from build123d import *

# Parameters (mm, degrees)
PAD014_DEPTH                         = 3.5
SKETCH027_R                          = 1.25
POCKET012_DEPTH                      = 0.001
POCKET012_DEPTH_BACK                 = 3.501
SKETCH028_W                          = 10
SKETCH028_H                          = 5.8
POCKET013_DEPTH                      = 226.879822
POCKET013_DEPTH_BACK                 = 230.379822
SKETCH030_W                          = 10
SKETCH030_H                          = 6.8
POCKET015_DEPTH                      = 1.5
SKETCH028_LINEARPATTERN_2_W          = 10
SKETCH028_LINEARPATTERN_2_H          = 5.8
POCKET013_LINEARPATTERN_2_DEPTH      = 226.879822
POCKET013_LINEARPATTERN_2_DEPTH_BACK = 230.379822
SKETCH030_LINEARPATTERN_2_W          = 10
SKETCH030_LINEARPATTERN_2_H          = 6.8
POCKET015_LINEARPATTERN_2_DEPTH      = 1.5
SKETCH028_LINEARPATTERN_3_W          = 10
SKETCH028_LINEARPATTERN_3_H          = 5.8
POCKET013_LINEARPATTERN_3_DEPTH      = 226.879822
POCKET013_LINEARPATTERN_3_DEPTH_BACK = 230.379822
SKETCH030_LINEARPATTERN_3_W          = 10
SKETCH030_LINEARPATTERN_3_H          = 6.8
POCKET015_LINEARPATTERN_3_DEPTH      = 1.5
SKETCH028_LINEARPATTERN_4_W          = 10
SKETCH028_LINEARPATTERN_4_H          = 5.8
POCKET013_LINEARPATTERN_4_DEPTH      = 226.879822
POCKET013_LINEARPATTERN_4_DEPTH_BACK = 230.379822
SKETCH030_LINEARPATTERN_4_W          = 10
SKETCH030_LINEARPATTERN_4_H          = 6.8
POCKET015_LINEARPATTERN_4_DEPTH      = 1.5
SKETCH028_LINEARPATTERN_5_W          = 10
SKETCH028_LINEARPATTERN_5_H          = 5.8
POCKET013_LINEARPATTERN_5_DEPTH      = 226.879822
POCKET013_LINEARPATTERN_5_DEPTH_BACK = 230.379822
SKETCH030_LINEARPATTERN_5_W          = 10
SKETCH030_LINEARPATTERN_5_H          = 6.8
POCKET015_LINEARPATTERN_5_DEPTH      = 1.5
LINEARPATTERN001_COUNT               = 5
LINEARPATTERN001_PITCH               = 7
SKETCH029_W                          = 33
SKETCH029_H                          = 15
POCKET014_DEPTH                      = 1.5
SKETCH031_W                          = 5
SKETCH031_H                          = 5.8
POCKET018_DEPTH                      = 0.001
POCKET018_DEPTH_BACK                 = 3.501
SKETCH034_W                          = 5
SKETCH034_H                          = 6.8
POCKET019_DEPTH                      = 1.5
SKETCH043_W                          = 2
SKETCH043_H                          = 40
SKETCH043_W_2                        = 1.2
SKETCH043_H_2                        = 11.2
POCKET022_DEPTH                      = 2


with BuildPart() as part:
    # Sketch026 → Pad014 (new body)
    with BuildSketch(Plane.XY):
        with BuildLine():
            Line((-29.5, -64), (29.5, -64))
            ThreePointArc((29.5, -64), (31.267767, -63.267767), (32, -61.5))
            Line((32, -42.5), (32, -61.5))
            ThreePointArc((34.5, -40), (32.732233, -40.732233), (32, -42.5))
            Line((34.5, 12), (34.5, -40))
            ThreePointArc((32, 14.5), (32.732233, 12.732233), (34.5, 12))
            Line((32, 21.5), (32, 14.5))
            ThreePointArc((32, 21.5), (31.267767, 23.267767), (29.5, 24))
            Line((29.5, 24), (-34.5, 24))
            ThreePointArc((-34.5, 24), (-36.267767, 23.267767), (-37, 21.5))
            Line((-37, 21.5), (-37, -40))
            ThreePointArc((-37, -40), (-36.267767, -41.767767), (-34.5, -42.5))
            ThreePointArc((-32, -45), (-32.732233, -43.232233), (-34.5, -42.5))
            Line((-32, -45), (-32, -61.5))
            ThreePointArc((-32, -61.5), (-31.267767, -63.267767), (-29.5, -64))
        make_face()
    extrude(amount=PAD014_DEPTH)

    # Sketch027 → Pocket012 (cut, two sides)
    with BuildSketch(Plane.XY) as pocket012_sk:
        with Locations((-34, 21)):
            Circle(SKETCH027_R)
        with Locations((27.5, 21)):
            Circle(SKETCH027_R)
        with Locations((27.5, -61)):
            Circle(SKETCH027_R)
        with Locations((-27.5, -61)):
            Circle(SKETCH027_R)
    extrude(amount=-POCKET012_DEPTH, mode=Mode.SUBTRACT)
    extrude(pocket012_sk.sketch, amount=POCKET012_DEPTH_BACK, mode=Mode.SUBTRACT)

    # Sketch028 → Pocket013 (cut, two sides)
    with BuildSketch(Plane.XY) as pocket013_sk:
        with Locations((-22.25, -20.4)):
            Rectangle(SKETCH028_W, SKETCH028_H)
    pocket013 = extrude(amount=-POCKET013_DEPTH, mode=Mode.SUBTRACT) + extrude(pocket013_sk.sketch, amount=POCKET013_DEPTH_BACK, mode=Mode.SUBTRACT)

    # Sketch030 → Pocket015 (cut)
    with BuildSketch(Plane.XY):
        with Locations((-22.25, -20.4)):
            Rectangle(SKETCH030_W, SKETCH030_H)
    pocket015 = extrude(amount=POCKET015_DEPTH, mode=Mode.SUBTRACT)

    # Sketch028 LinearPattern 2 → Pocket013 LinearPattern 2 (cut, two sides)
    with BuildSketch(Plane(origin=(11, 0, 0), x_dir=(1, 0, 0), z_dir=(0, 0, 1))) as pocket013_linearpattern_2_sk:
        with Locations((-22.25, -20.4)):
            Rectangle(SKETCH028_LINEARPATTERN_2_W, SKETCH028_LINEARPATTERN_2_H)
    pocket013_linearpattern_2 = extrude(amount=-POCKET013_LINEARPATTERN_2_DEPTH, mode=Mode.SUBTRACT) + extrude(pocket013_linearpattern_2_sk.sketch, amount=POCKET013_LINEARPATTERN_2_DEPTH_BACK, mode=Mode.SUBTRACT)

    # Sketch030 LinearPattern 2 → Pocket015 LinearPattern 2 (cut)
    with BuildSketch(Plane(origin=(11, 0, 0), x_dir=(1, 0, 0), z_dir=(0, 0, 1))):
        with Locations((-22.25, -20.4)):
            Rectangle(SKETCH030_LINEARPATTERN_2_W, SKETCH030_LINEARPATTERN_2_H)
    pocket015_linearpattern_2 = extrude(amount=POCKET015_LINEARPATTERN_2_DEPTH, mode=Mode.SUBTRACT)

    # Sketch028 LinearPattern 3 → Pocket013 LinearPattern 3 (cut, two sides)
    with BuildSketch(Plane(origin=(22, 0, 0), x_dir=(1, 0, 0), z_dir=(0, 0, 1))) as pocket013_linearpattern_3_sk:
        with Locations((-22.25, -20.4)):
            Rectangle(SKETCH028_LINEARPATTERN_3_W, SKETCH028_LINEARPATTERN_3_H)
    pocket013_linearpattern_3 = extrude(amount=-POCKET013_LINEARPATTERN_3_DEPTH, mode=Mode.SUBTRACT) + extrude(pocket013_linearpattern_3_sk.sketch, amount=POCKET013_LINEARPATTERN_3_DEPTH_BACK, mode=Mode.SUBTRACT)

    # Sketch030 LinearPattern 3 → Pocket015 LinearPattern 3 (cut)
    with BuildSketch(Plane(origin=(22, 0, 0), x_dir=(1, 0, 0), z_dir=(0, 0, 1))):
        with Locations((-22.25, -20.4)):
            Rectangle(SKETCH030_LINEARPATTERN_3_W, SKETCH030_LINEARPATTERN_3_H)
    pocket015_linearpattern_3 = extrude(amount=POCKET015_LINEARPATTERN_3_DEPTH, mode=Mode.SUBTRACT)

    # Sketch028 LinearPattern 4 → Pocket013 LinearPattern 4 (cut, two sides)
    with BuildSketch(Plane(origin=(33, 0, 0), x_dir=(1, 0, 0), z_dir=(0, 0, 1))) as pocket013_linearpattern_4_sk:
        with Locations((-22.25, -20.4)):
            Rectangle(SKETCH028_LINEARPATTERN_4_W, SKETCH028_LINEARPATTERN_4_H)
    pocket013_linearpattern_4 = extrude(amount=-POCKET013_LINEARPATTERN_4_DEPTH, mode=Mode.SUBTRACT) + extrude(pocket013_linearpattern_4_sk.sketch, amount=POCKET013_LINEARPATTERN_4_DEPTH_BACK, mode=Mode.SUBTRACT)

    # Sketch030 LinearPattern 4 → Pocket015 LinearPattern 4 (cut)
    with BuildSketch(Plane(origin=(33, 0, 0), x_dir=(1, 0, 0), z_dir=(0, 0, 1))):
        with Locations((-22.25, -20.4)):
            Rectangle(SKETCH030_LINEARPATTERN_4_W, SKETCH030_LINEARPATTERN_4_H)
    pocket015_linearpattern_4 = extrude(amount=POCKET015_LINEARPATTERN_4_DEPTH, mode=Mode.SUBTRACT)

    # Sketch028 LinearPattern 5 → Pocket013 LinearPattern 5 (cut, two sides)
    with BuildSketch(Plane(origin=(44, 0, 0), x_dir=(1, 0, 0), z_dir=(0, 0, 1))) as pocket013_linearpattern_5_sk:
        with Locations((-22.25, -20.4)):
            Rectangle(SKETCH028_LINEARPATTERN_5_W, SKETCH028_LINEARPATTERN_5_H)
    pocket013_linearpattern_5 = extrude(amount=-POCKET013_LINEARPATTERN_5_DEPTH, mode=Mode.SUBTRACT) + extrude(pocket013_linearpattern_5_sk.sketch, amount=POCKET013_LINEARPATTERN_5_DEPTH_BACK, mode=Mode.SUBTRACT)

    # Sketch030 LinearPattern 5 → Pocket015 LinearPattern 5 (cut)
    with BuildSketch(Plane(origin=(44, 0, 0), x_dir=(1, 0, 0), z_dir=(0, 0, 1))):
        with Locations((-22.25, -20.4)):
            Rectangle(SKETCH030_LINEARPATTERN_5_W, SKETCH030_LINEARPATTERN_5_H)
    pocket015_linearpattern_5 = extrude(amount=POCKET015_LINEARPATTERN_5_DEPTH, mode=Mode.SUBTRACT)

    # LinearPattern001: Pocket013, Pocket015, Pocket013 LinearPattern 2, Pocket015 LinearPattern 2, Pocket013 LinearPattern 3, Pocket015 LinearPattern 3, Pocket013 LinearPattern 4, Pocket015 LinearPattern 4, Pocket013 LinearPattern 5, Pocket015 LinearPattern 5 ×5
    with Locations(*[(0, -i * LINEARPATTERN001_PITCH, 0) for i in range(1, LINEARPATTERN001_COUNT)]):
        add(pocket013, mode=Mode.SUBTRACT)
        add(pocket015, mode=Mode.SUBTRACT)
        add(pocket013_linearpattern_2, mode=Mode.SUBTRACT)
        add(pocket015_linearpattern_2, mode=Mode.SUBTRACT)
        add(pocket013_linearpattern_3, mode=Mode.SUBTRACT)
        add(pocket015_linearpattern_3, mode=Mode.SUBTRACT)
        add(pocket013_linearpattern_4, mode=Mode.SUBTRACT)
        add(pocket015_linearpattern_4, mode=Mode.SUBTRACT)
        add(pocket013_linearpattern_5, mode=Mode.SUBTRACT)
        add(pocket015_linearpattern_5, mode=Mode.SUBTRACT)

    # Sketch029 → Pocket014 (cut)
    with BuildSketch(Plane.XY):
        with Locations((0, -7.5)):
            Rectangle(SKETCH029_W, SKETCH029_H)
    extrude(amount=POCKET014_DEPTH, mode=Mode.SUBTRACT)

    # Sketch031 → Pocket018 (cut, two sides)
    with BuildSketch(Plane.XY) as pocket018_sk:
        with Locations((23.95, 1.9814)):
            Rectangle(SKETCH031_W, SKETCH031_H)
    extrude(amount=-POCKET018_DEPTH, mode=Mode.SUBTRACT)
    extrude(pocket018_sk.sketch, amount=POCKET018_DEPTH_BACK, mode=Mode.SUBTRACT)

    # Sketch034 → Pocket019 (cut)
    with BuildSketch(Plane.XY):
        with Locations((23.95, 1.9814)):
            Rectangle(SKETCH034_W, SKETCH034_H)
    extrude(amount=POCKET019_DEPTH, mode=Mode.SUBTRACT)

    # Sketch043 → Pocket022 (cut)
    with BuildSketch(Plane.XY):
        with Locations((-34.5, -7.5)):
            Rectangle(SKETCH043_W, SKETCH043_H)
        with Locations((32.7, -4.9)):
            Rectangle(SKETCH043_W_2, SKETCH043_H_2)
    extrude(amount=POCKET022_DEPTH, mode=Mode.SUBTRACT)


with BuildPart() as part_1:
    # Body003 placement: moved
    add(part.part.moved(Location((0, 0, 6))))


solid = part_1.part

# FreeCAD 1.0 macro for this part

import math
import FreeCAD as App
import Part
import Sketcher
from FreeCAD import Vector
Q = App.Units.Quantity

doc = App.newDocument("Part")
body = doc.addObject("PartDesign::Body", "Body")

sketch1 = body.newObject("Sketcher::SketchObject", "Sketch")
sketch1.AttachmentSupport = (doc.getObject("XY_Plane"), [""])
sketch1.MapMode = "FlatFace"
sketch1.addGeometry([
    Part.LineSegment(Vector(-29.5, -64, 0), Vector(29.5, -64, 0)),
    Part.ArcOfCircle(Part.Circle(Vector(29.5, -61.5, 0), Vector(0, 0, 1), 2.5), math.radians(-90), math.radians(0)),
    Part.LineSegment(Vector(32, -61.5, 0), Vector(32, -42.5, 0)),
    Part.ArcOfCircle(Part.Circle(Vector(34.5, -42.5, 0), Vector(0, 0, 1), 2.5), math.radians(90), math.radians(180)),
    Part.LineSegment(Vector(34.5, -40, 0), Vector(34.5, 12, 0)),
    Part.ArcOfCircle(Part.Circle(Vector(34.5, 14.5, 0), Vector(0, 0, 1), 2.5), math.radians(180), math.radians(270)),
    Part.LineSegment(Vector(32, 14.5, 0), Vector(32, 21.5, 0)),
    Part.ArcOfCircle(Part.Circle(Vector(29.5, 21.5, 0), Vector(0, 0, 1), 2.5), math.radians(0), math.radians(90)),
    Part.LineSegment(Vector(29.5, 24, 0), Vector(-34.5, 24, 0)),
    Part.ArcOfCircle(Part.Circle(Vector(-34.5, 21.5, 0), Vector(0, 0, 1), 2.5), math.radians(90), math.radians(180)),
    Part.LineSegment(Vector(-37, 21.5, 0), Vector(-37, -40, 0)),
    Part.ArcOfCircle(Part.Circle(Vector(-34.5, -40, 0), Vector(0, 0, 1), 2.5), math.radians(180), math.radians(270)),
    Part.ArcOfCircle(Part.Circle(Vector(-34.5, -45, 0), Vector(0, 0, 1), 2.5), math.radians(0), math.radians(90)),
    Part.LineSegment(Vector(-32, -45, 0), Vector(-32, -61.5, 0)),
    Part.ArcOfCircle(Part.Circle(Vector(-29.5, -61.5, 0), Vector(0, 0, 1), 2.5), math.radians(180), math.radians(270)),
], False)
sketch1.addConstraint([
    Sketcher.Constraint("Tangent", 0, 2, 1, 1),
    Sketcher.Constraint("Tangent", 1, 2, 2, 1),
    Sketcher.Constraint("Tangent", 2, 2, 3, 2),
    Sketcher.Constraint("Coincident", 3, 1, 4, 1),
    Sketcher.Constraint("Coincident", 4, 2, 5, 2),
    Sketcher.Constraint("Tangent", 5, 1, 6, 1),
    Sketcher.Constraint("Tangent", 6, 2, 7, 1),
    Sketcher.Constraint("Tangent", 7, 2, 8, 1),
    Sketcher.Constraint("Tangent", 8, 2, 9, 1),
    Sketcher.Constraint("Tangent", 9, 2, 10, 1),
    Sketcher.Constraint("Tangent", 10, 2, 11, 1),
    Sketcher.Constraint("Tangent", 11, 2, 12, 2),
    Sketcher.Constraint("Tangent", 12, 1, 13, 1),
    Sketcher.Constraint("Tangent", 13, 2, 14, 1),
    Sketcher.Constraint("Tangent", 14, 2, 0, 1),
    Sketcher.Constraint("Horizontal", 0),
    Sketcher.Constraint("Vertical", 2),
    Sketcher.Constraint("Vertical", 4),
    Sketcher.Constraint("Vertical", 6),
    Sketcher.Constraint("Horizontal", 8),
    Sketcher.Constraint("Vertical", 10),
    Sketcher.Constraint("Vertical", 13),
    Sketcher.Constraint("Equal", 1, 3),
    Sketcher.Constraint("Equal", 3, 5),
    Sketcher.Constraint("Equal", 5, 7),
    Sketcher.Constraint("Equal", 7, 9),
    Sketcher.Constraint("Equal", 9, 11),
    Sketcher.Constraint("Equal", 11, 12),
    Sketcher.Constraint("Equal", 12, 14),
    Sketcher.Constraint("Horizontal", 11, 3, 3, 1),
    Sketcher.Constraint("Vertical", 3, 3, 5, 3),
    Sketcher.Constraint("Vertical", 11, 3, 12, 3),
    Sketcher.Constraint("Vertical", 5, 3, 3, 1),
    Sketcher.Constraint("Radius", 1, Q("2.5 mm")),
    Sketcher.Constraint("DistanceX", 0, 1, 0, 2, Q("59 mm")),
    Sketcher.Constraint("DistanceY", 2, 1, 2, 2, Q("19 mm")),
    Sketcher.Constraint("DistanceY", 4, 1, 4, 2, Q("52 mm")),
    Sketcher.Constraint("DistanceY", 6, 1, 6, 2, Q("7 mm")),
    Sketcher.Constraint("DistanceY", 11, 3, -1, 1, Q("40 mm")),
    Sketcher.Constraint("DistanceX", -1, 1, 1, 2, Q("32 mm")),
])
pad1 = body.newObject("PartDesign::Pad", "Pad")
pad1.Profile = sketch1
pad1.Length = 3.5

sketch2 = body.newObject("Sketcher::SketchObject", "Sketch001")
sketch2.AttachmentSupport = (doc.getObject("XY_Plane"), [""])
sketch2.MapMode = "FlatFace"
sketch2.addGeometry([
    Part.Circle(Vector(-34, 21, 0), Vector(0, 0, 1), 1.2),
    Part.Circle(Vector(27.5, 21, 0), Vector(0, 0, 1), 1.2),
    Part.Circle(Vector(27.5, -61, 0), Vector(0, 0, 1), 1.2),
    Part.Circle(Vector(-27.5, -61, 0), Vector(0, 0, 1), 1.2),
], False)
sketch2.addConstraint([
    Sketcher.Constraint("Equal", 0, 1),
    Sketcher.Constraint("Equal", 1, 2),
    Sketcher.Constraint("Equal", 2, 3),
    Sketcher.Constraint("Symmetric", 2, 3, 3, 3, -2),
    Sketcher.Constraint("Horizontal", 0, 3, 1, 3),
    Sketcher.Constraint("Vertical", 1, 3, 2, 3),
    Sketcher.Constraint("Diameter", 0, Q("2.5 mm")),
    Sketcher.Constraint("DistanceX", 0, 3, -1, 1, Q("34 mm")),
    Sketcher.Constraint("DistanceY", -1, 1, 0, 3, Q("21 mm")),
    Sketcher.Constraint("DistanceY", 2, 3, -1, 1, Q("61 mm")),
    Sketcher.Constraint("DistanceX", 3, 3, 2, 3, Q("55 mm")),
])
pocket1 = body.newObject("PartDesign::Pocket", "Pocket")
pocket1.Profile = sketch2
pocket1.Type = "ThroughAll"
pocket1.Midplane = True

sketch3 = body.newObject("Sketcher::SketchObject", "Sketch002")
sketch3.AttachmentSupport = (doc.getObject("XY_Plane"), [""])
sketch3.MapMode = "FlatFace"
sketch3.addGeometry([
    Part.LineSegment(Vector(-27, -18, 0), Vector(-27, -23, 0)),
    Part.LineSegment(Vector(-27, -23, 0), Vector(-17, -23, 0)),
    Part.LineSegment(Vector(-17, -23, 0), Vector(-17, -18, 0)),
    Part.LineSegment(Vector(-17, -18, 0), Vector(-27, -18, 0)),
], False)
sketch3.addConstraint([
    Sketcher.Constraint("Coincident", 0, 2, 1, 1),
    Sketcher.Constraint("Coincident", 1, 2, 2, 1),
    Sketcher.Constraint("Coincident", 2, 2, 3, 1),
    Sketcher.Constraint("Coincident", 3, 2, 0, 1),
    Sketcher.Constraint("Vertical", 0),
    Sketcher.Constraint("Horizontal", 1),
    Sketcher.Constraint("Vertical", 2),
    Sketcher.Constraint("Horizontal", 3),
    Sketcher.Constraint("DistanceX", 1, 1, 1, 2, Q("10 mm")),
    Sketcher.Constraint("DistanceY", 0, 2, 0, 1, Q("5.8 mm")),
    Sketcher.Constraint("DistanceY", 0, 2, -1, 1, Q("23.3 mm")),
    Sketcher.Constraint("DistanceX", 0, 2, -1, 1, Q("27.25 mm")),
])
pocket2 = body.newObject("PartDesign::Pocket", "Pocket001")
pocket2.Profile = sketch3
pocket2.Type = "ThroughAll"
pocket2.Midplane = True

sketch4 = body.newObject("Sketcher::SketchObject", "Sketch003")
sketch4.AttachmentSupport = (doc.getObject("XY_Plane"), [""])
sketch4.MapMode = "FlatFace"
sketch4.addGeometry([
    Part.LineSegment(Vector(-27, -17, 0), Vector(-27, -24, 0)),
    Part.LineSegment(Vector(-27, -24, 0), Vector(-17, -24, 0)),
    Part.LineSegment(Vector(-17, -24, 0), Vector(-17, -17, 0)),
    Part.LineSegment(Vector(-17, -17, 0), Vector(-27, -17, 0)),
], False)
sketch4.addConstraint([
    Sketcher.Constraint("Coincident", 0, 2, 1, 1),
    Sketcher.Constraint("Coincident", 1, 2, 2, 1),
    Sketcher.Constraint("Coincident", 2, 2, 3, 1),
    Sketcher.Constraint("Coincident", 3, 2, 0, 1),
    Sketcher.Constraint("Vertical", 0),
    Sketcher.Constraint("Horizontal", 1),
    Sketcher.Constraint("Vertical", 2),
    Sketcher.Constraint("Horizontal", 3),
    Sketcher.Constraint("DistanceX", 1, 1, 1, 2, Q("10 mm")),
    Sketcher.Constraint("DistanceY", 0, 2, 0, 1, Q("6.8 mm")),
    Sketcher.Constraint("DistanceY", 2, 2, -1, 1, Q("17 mm")),
    Sketcher.Constraint("DistanceX", 0, 2, -1, 1, Q("27.25 mm")),
])
pocket3 = body.newObject("PartDesign::Pocket", "Pocket002")
pocket3.Profile = sketch4
pocket3.Length = 1.5
pocket3.Reversed = True

sketch5 = body.newObject("Sketcher::SketchObject", "Sketch004")
sketch5.AttachmentSupport = (doc.getObject("XY_Plane"), [""])
sketch5.MapMode = "FlatFace"
sketch5.addGeometry([
    Part.LineSegment(Vector(-16, -18, 0), Vector(-16, -23, 0)),
    Part.LineSegment(Vector(-16, -23, 0), Vector(-6, -23, 0)),
    Part.LineSegment(Vector(-6, -23, 0), Vector(-6, -18, 0)),
    Part.LineSegment(Vector(-6, -18, 0), Vector(-16, -18, 0)),
], False)
sketch5.addConstraint([
    Sketcher.Constraint("Coincident", 0, 2, 1, 1),
    Sketcher.Constraint("Coincident", 1, 2, 2, 1),
    Sketcher.Constraint("Coincident", 2, 2, 3, 1),
    Sketcher.Constraint("Coincident", 3, 2, 0, 1),
    Sketcher.Constraint("Vertical", 0),
    Sketcher.Constraint("Horizontal", 1),
    Sketcher.Constraint("Vertical", 2),
    Sketcher.Constraint("Horizontal", 3),
    Sketcher.Constraint("DistanceX", 1, 1, 1, 2, Q("10 mm")),
    Sketcher.Constraint("DistanceY", 0, 2, 0, 1, Q("5.8 mm")),
    Sketcher.Constraint("DistanceY", 0, 2, -1, 1, Q("23.3 mm")),
    Sketcher.Constraint("DistanceX", 0, 2, -1, 1, Q("16.25 mm")),
])
pocket4 = body.newObject("PartDesign::Pocket", "Pocket003")
pocket4.Profile = sketch5
pocket4.Type = "ThroughAll"
pocket4.Midplane = True

sketch6 = body.newObject("Sketcher::SketchObject", "Sketch005")
sketch6.AttachmentSupport = (doc.getObject("XY_Plane"), [""])
sketch6.MapMode = "FlatFace"
sketch6.addGeometry([
    Part.LineSegment(Vector(-16, -17, 0), Vector(-16, -24, 0)),
    Part.LineSegment(Vector(-16, -24, 0), Vector(-6, -24, 0)),
    Part.LineSegment(Vector(-6, -24, 0), Vector(-6, -17, 0)),
    Part.LineSegment(Vector(-6, -17, 0), Vector(-16, -17, 0)),
], False)
sketch6.addConstraint([
    Sketcher.Constraint("Coincident", 0, 2, 1, 1),
    Sketcher.Constraint("Coincident", 1, 2, 2, 1),
    Sketcher.Constraint("Coincident", 2, 2, 3, 1),
    Sketcher.Constraint("Coincident", 3, 2, 0, 1),
    Sketcher.Constraint("Vertical", 0),
    Sketcher.Constraint("Horizontal", 1),
    Sketcher.Constraint("Vertical", 2),
    Sketcher.Constraint("Horizontal", 3),
    Sketcher.Constraint("DistanceX", 1, 1, 1, 2, Q("10 mm")),
    Sketcher.Constraint("DistanceY", 0, 2, 0, 1, Q("6.8 mm")),
    Sketcher.Constraint("DistanceY", 2, 2, -1, 1, Q("17 mm")),
    Sketcher.Constraint("DistanceX", 0, 2, -1, 1, Q("16.25 mm")),
])
pocket5 = body.newObject("PartDesign::Pocket", "Pocket004")
pocket5.Profile = sketch6
pocket5.Length = 1.5
pocket5.Reversed = True

sketch7 = body.newObject("Sketcher::SketchObject", "Sketch006")
sketch7.AttachmentSupport = (doc.getObject("XY_Plane"), [""])
sketch7.MapMode = "FlatFace"
sketch7.addGeometry([
    Part.LineSegment(Vector(-5, -18, 0), Vector(-5, -23, 0)),
    Part.LineSegment(Vector(-5, -23, 0), Vector(5, -23, 0)),
    Part.LineSegment(Vector(5, -23, 0), Vector(5, -18, 0)),
    Part.LineSegment(Vector(5, -18, 0), Vector(-5, -18, 0)),
], False)
sketch7.addConstraint([
    Sketcher.Constraint("Coincident", 0, 2, 1, 1),
    Sketcher.Constraint("Coincident", 1, 2, 2, 1),
    Sketcher.Constraint("Coincident", 2, 2, 3, 1),
    Sketcher.Constraint("Coincident", 3, 2, 0, 1),
    Sketcher.Constraint("Vertical", 0),
    Sketcher.Constraint("Horizontal", 1),
    Sketcher.Constraint("Vertical", 2),
    Sketcher.Constraint("Horizontal", 3),
    Sketcher.Constraint("DistanceX", 1, 1, 1, 2, Q("10 mm")),
    Sketcher.Constraint("DistanceY", 0, 2, 0, 1, Q("5.8 mm")),
    Sketcher.Constraint("DistanceY", 0, 2, -1, 1, Q("23.3 mm")),
    Sketcher.Constraint("DistanceX", 0, 2, -1, 1, Q("5.25 mm")),
])
pocket6 = body.newObject("PartDesign::Pocket", "Pocket005")
pocket6.Profile = sketch7
pocket6.Type = "ThroughAll"
pocket6.Midplane = True

sketch8 = body.newObject("Sketcher::SketchObject", "Sketch007")
sketch8.AttachmentSupport = (doc.getObject("XY_Plane"), [""])
sketch8.MapMode = "FlatFace"
sketch8.addGeometry([
    Part.LineSegment(Vector(-5, -17, 0), Vector(-5, -24, 0)),
    Part.LineSegment(Vector(-5, -24, 0), Vector(5, -24, 0)),
    Part.LineSegment(Vector(5, -24, 0), Vector(5, -17, 0)),
    Part.LineSegment(Vector(5, -17, 0), Vector(-5, -17, 0)),
], False)
sketch8.addConstraint([
    Sketcher.Constraint("Coincident", 0, 2, 1, 1),
    Sketcher.Constraint("Coincident", 1, 2, 2, 1),
    Sketcher.Constraint("Coincident", 2, 2, 3, 1),
    Sketcher.Constraint("Coincident", 3, 2, 0, 1),
    Sketcher.Constraint("Vertical", 0),
    Sketcher.Constraint("Horizontal", 1),
    Sketcher.Constraint("Vertical", 2),
    Sketcher.Constraint("Horizontal", 3),
    Sketcher.Constraint("DistanceX", 1, 1, 1, 2, Q("10 mm")),
    Sketcher.Constraint("DistanceY", 0, 2, 0, 1, Q("6.8 mm")),
    Sketcher.Constraint("DistanceY", 2, 2, -1, 1, Q("17 mm")),
    Sketcher.Constraint("DistanceX", 0, 2, -1, 1, Q("5.25 mm")),
])
pocket7 = body.newObject("PartDesign::Pocket", "Pocket006")
pocket7.Profile = sketch8
pocket7.Length = 1.5
pocket7.Reversed = True

sketch9 = body.newObject("Sketcher::SketchObject", "Sketch008")
sketch9.AttachmentSupport = (doc.getObject("XY_Plane"), [""])
sketch9.MapMode = "FlatFace"
sketch9.addGeometry([
    Part.LineSegment(Vector(6, -18, 0), Vector(6, -23, 0)),
    Part.LineSegment(Vector(6, -23, 0), Vector(16, -23, 0)),
    Part.LineSegment(Vector(16, -23, 0), Vector(16, -18, 0)),
    Part.LineSegment(Vector(16, -18, 0), Vector(6, -18, 0)),
], False)
sketch9.addConstraint([
    Sketcher.Constraint("Coincident", 0, 2, 1, 1),
    Sketcher.Constraint("Coincident", 1, 2, 2, 1),
    Sketcher.Constraint("Coincident", 2, 2, 3, 1),
    Sketcher.Constraint("Coincident", 3, 2, 0, 1),
    Sketcher.Constraint("Vertical", 0),
    Sketcher.Constraint("Horizontal", 1),
    Sketcher.Constraint("Vertical", 2),
    Sketcher.Constraint("Horizontal", 3),
    Sketcher.Constraint("DistanceX", 1, 1, 1, 2, Q("10 mm")),
    Sketcher.Constraint("DistanceY", 0, 2, 0, 1, Q("5.8 mm")),
    Sketcher.Constraint("DistanceY", 0, 2, -1, 1, Q("23.3 mm")),
    Sketcher.Constraint("DistanceX", -1, 1, 0, 2, Q("5.75 mm")),
])
pocket8 = body.newObject("PartDesign::Pocket", "Pocket007")
pocket8.Profile = sketch9
pocket8.Type = "ThroughAll"
pocket8.Midplane = True

sketch10 = body.newObject("Sketcher::SketchObject", "Sketch009")
sketch10.AttachmentSupport = (doc.getObject("XY_Plane"), [""])
sketch10.MapMode = "FlatFace"
sketch10.addGeometry([
    Part.LineSegment(Vector(6, -17, 0), Vector(6, -24, 0)),
    Part.LineSegment(Vector(6, -24, 0), Vector(16, -24, 0)),
    Part.LineSegment(Vector(16, -24, 0), Vector(16, -17, 0)),
    Part.LineSegment(Vector(16, -17, 0), Vector(6, -17, 0)),
], False)
sketch10.addConstraint([
    Sketcher.Constraint("Coincident", 0, 2, 1, 1),
    Sketcher.Constraint("Coincident", 1, 2, 2, 1),
    Sketcher.Constraint("Coincident", 2, 2, 3, 1),
    Sketcher.Constraint("Coincident", 3, 2, 0, 1),
    Sketcher.Constraint("Vertical", 0),
    Sketcher.Constraint("Horizontal", 1),
    Sketcher.Constraint("Vertical", 2),
    Sketcher.Constraint("Horizontal", 3),
    Sketcher.Constraint("DistanceX", 1, 1, 1, 2, Q("10 mm")),
    Sketcher.Constraint("DistanceY", 0, 2, 0, 1, Q("6.8 mm")),
    Sketcher.Constraint("DistanceY", 2, 2, -1, 1, Q("17 mm")),
    Sketcher.Constraint("DistanceX", -1, 1, 0, 2, Q("5.75 mm")),
])
pocket9 = body.newObject("PartDesign::Pocket", "Pocket008")
pocket9.Profile = sketch10
pocket9.Length = 1.5
pocket9.Reversed = True

sketch11 = body.newObject("Sketcher::SketchObject", "Sketch010")
sketch11.AttachmentSupport = (doc.getObject("XY_Plane"), [""])
sketch11.MapMode = "FlatFace"
sketch11.addGeometry([
    Part.LineSegment(Vector(17, -18, 0), Vector(17, -23, 0)),
    Part.LineSegment(Vector(17, -23, 0), Vector(27, -23, 0)),
    Part.LineSegment(Vector(27, -23, 0), Vector(27, -18, 0)),
    Part.LineSegment(Vector(27, -18, 0), Vector(17, -18, 0)),
], False)
sketch11.addConstraint([
    Sketcher.Constraint("Coincident", 0, 2, 1, 1),
    Sketcher.Constraint("Coincident", 1, 2, 2, 1),
    Sketcher.Constraint("Coincident", 2, 2, 3, 1),
    Sketcher.Constraint("Coincident", 3, 2, 0, 1),
    Sketcher.Constraint("Vertical", 0),
    Sketcher.Constraint("Horizontal", 1),
    Sketcher.Constraint("Vertical", 2),
    Sketcher.Constraint("Horizontal", 3),
    Sketcher.Constraint("DistanceX", 1, 1, 1, 2, Q("10 mm")),
    Sketcher.Constraint("DistanceY", 0, 2, 0, 1, Q("5.8 mm")),
    Sketcher.Constraint("DistanceY", 0, 2, -1, 1, Q("23.3 mm")),
    Sketcher.Constraint("DistanceX", -1, 1, 0, 2, Q("16.75 mm")),
])
pocket10 = body.newObject("PartDesign::Pocket", "Pocket009")
pocket10.Profile = sketch11
pocket10.Type = "ThroughAll"
pocket10.Midplane = True

sketch12 = body.newObject("Sketcher::SketchObject", "Sketch011")
sketch12.AttachmentSupport = (doc.getObject("XY_Plane"), [""])
sketch12.MapMode = "FlatFace"
sketch12.addGeometry([
    Part.LineSegment(Vector(17, -17, 0), Vector(17, -24, 0)),
    Part.LineSegment(Vector(17, -24, 0), Vector(27, -24, 0)),
    Part.LineSegment(Vector(27, -24, 0), Vector(27, -17, 0)),
    Part.LineSegment(Vector(27, -17, 0), Vector(17, -17, 0)),
], False)
sketch12.addConstraint([
    Sketcher.Constraint("Coincident", 0, 2, 1, 1),
    Sketcher.Constraint("Coincident", 1, 2, 2, 1),
    Sketcher.Constraint("Coincident", 2, 2, 3, 1),
    Sketcher.Constraint("Coincident", 3, 2, 0, 1),
    Sketcher.Constraint("Vertical", 0),
    Sketcher.Constraint("Horizontal", 1),
    Sketcher.Constraint("Vertical", 2),
    Sketcher.Constraint("Horizontal", 3),
    Sketcher.Constraint("DistanceX", 1, 1, 1, 2, Q("10 mm")),
    Sketcher.Constraint("DistanceY", 0, 2, 0, 1, Q("6.8 mm")),
    Sketcher.Constraint("DistanceY", 2, 2, -1, 1, Q("17 mm")),
    Sketcher.Constraint("DistanceX", -1, 1, 0, 2, Q("16.75 mm")),
])
pocket11 = body.newObject("PartDesign::Pocket", "Pocket010")
pocket11.Profile = sketch12
pocket11.Length = 1.5
pocket11.Reversed = True
doc.recompute()

linearpattern = body.newObject("PartDesign::LinearPattern", "LinearPattern")
linearpattern.Originals = [pocket2, pocket3, pocket4, pocket5, pocket6, pocket7, pocket8, pocket9, pocket10, pocket11]
linearpattern.Direction = (doc.getObject("Y_Axis"), [""])
linearpattern.Mode = "offset"
linearpattern.Offset = 7
linearpattern.Occurrences = 5
linearpattern.Reversed = True
body.Tip = linearpattern

sketch13 = body.newObject("Sketcher::SketchObject", "Sketch012")
sketch13.AttachmentSupport = (doc.getObject("XY_Plane"), [""])
sketch13.MapMode = "FlatFace"
sketch13.addGeometry([
    Part.LineSegment(Vector(-16, 0, 0), Vector(-16, -15, 0)),
    Part.LineSegment(Vector(-16, -15, 0), Vector(16, -15, 0)),
    Part.LineSegment(Vector(16, -15, 0), Vector(16, 0, 0)),
    Part.LineSegment(Vector(16, 0, 0), Vector(-16, 0, 0)),
], False)
sketch13.addConstraint([
    Sketcher.Constraint("Coincident", 0, 2, 1, 1),
    Sketcher.Constraint("Coincident", 1, 2, 2, 1),
    Sketcher.Constraint("Coincident", 2, 2, 3, 1),
    Sketcher.Constraint("Coincident", 3, 2, 0, 1),
    Sketcher.Constraint("Vertical", 0),
    Sketcher.Constraint("Horizontal", 1),
    Sketcher.Constraint("Vertical", 2),
    Sketcher.Constraint("Horizontal", 3),
    Sketcher.Constraint("Symmetric", 2, 2, 3, 2, -1, 1),
    Sketcher.Constraint("DistanceX", 1, 1, 1, 2, Q("33 mm")),
    Sketcher.Constraint("DistanceY", 0, 2, 0, 1, Q("15 mm")),
])
pocket12 = body.newObject("PartDesign::Pocket", "Pocket011")
pocket12.Profile = sketch13
pocket12.Length = 1.5
pocket12.Reversed = True

sketch14 = body.newObject("Sketcher::SketchObject", "Sketch013")
sketch14.AttachmentSupport = (doc.getObject("XY_Plane"), [""])
sketch14.MapMode = "FlatFace"
sketch14.addGeometry([
    Part.LineSegment(Vector(21, 5, 0), Vector(21, -1, 0)),
    Part.LineSegment(Vector(21, -1, 0), Vector(26, -1, 0)),
    Part.LineSegment(Vector(26, -1, 0), Vector(26, 5, 0)),
    Part.LineSegment(Vector(26, 5, 0), Vector(21, 5, 0)),
], False)
sketch14.addConstraint([
    Sketcher.Constraint("Coincident", 0, 2, 1, 1),
    Sketcher.Constraint("Coincident", 1, 2, 2, 1),
    Sketcher.Constraint("Coincident", 2, 2, 3, 1),
    Sketcher.Constraint("Coincident", 3, 2, 0, 1),
    Sketcher.Constraint("Vertical", 0),
    Sketcher.Constraint("Horizontal", 1),
    Sketcher.Constraint("Vertical", 2),
    Sketcher.Constraint("Horizontal", 3),
    Sketcher.Constraint("DistanceX", 1, 1, 1, 2, Q("5 mm")),
    Sketcher.Constraint("DistanceY", 0, 2, 0, 1, Q("5.8 mm")),
    Sketcher.Constraint("DistanceX", -1, 1, 0, 2, Q("21.45 mm")),
    Sketcher.Constraint("DistanceY", 0, 2, -1, 1, Q("0.9186 mm")),
])
pocket13 = body.newObject("PartDesign::Pocket", "Pocket012")
pocket13.Profile = sketch14
pocket13.Type = "ThroughAll"
pocket13.Midplane = True

sketch15 = body.newObject("Sketcher::SketchObject", "Sketch014")
sketch15.AttachmentSupport = (doc.getObject("XY_Plane"), [""])
sketch15.MapMode = "FlatFace"
sketch15.addGeometry([
    Part.LineSegment(Vector(21, 5, 0), Vector(21, -1, 0)),
    Part.LineSegment(Vector(21, -1, 0), Vector(26, -1, 0)),
    Part.LineSegment(Vector(26, -1, 0), Vector(26, 5, 0)),
    Part.LineSegment(Vector(26, 5, 0), Vector(21, 5, 0)),
], False)
sketch15.addConstraint([
    Sketcher.Constraint("Coincident", 0, 2, 1, 1),
    Sketcher.Constraint("Coincident", 1, 2, 2, 1),
    Sketcher.Constraint("Coincident", 2, 2, 3, 1),
    Sketcher.Constraint("Coincident", 3, 2, 0, 1),
    Sketcher.Constraint("Vertical", 0),
    Sketcher.Constraint("Horizontal", 1),
    Sketcher.Constraint("Vertical", 2),
    Sketcher.Constraint("Horizontal", 3),
    Sketcher.Constraint("DistanceX", 1, 1, 1, 2, Q("5 mm")),
    Sketcher.Constraint("DistanceY", 0, 2, 0, 1, Q("6.8 mm")),
    Sketcher.Constraint("DistanceX", -1, 1, 0, 2, Q("21.45 mm")),
    Sketcher.Constraint("DistanceY", 0, 2, -1, 1, Q("1.4186 mm")),
])
pocket14 = body.newObject("PartDesign::Pocket", "Pocket013")
pocket14.Profile = sketch15
pocket14.Length = 1.5
pocket14.Reversed = True

sketch16 = body.newObject("Sketcher::SketchObject", "Sketch015")
sketch16.AttachmentSupport = (doc.getObject("XY_Plane"), [""])
sketch16.MapMode = "FlatFace"
sketch16.addGeometry([
    Part.LineSegment(Vector(-35.5, 12.5, 0), Vector(-35.5, -27.5, 0)),
    Part.LineSegment(Vector(-35.5, -27.5, 0), Vector(-33.5, -27.5, 0)),
    Part.LineSegment(Vector(-33.5, -27.5, 0), Vector(-33.5, 12.5, 0)),
    Part.LineSegment(Vector(-33.5, 12.5, 0), Vector(-35.5, 12.5, 0)),
    Part.LineSegment(Vector(32.1, 0.7, 0), Vector(32.1, -10.5, 0)),
    Part.LineSegment(Vector(32.1, -10.5, 0), Vector(33.3, -10.5, 0)),
    Part.LineSegment(Vector(33.3, -10.5, 0), Vector(33.3, 0.7, 0)),
    Part.LineSegment(Vector(33.3, 0.7, 0), Vector(32.1, 0.7, 0)),
], False)
sketch16.addConstraint([
    Sketcher.Constraint("Coincident", 0, 2, 1, 1),
    Sketcher.Constraint("Coincident", 1, 2, 2, 1),
    Sketcher.Constraint("Coincident", 2, 2, 3, 1),
    Sketcher.Constraint("Coincident", 3, 2, 0, 1),
    Sketcher.Constraint("Coincident", 4, 2, 5, 1),
    Sketcher.Constraint("Coincident", 5, 2, 6, 1),
    Sketcher.Constraint("Coincident", 6, 2, 7, 1),
    Sketcher.Constraint("Coincident", 7, 2, 4, 1),
    Sketcher.Constraint("Vertical", 0),
    Sketcher.Constraint("Horizontal", 1),
    Sketcher.Constraint("Vertical", 2),
    Sketcher.Constraint("Horizontal", 3),
    Sketcher.Constraint("Vertical", 4),
    Sketcher.Constraint("Horizontal", 5),
    Sketcher.Constraint("Vertical", 6),
    Sketcher.Constraint("Horizontal", 7),
    Sketcher.Constraint("DistanceX", 1, 1, 1, 2, Q("2 mm")),
    Sketcher.Constraint("DistanceY", 0, 2, 0, 1, Q("40 mm")),
    Sketcher.Constraint("DistanceX", 5, 1, 5, 2, Q("1.2 mm")),
    Sketcher.Constraint("DistanceY", 4, 2, 4, 1, Q("11.2 mm")),
    Sketcher.Constraint("DistanceY", 1, 2, 4, 2, Q("17 mm")),
    Sketcher.Constraint("DistanceX", 0, 2, -1, 1, Q("35.5 mm")),
    Sketcher.Constraint("DistanceY", 0, 2, -1, 1, Q("27.5 mm")),
    Sketcher.Constraint("DistanceX", -1, 1, 4, 2, Q("32.1 mm")),
])
pocket15 = body.newObject("PartDesign::Pocket", "Pocket014")
pocket15.Profile = sketch16
pocket15.Length = 2
pocket15.Reversed = True
body2 = doc.addObject("PartDesign::Body", "Body001")
doc.recompute()

body.Placement = App.Placement(Vector(0, 0, 6), App.Rotation(Vector(0, 0, 1), 0))
boolean = body2.newObject("PartDesign::Boolean", "Boolean")
boolean.Type = "Fuse"
boolean.addObjects([body])

doc.recompute()
